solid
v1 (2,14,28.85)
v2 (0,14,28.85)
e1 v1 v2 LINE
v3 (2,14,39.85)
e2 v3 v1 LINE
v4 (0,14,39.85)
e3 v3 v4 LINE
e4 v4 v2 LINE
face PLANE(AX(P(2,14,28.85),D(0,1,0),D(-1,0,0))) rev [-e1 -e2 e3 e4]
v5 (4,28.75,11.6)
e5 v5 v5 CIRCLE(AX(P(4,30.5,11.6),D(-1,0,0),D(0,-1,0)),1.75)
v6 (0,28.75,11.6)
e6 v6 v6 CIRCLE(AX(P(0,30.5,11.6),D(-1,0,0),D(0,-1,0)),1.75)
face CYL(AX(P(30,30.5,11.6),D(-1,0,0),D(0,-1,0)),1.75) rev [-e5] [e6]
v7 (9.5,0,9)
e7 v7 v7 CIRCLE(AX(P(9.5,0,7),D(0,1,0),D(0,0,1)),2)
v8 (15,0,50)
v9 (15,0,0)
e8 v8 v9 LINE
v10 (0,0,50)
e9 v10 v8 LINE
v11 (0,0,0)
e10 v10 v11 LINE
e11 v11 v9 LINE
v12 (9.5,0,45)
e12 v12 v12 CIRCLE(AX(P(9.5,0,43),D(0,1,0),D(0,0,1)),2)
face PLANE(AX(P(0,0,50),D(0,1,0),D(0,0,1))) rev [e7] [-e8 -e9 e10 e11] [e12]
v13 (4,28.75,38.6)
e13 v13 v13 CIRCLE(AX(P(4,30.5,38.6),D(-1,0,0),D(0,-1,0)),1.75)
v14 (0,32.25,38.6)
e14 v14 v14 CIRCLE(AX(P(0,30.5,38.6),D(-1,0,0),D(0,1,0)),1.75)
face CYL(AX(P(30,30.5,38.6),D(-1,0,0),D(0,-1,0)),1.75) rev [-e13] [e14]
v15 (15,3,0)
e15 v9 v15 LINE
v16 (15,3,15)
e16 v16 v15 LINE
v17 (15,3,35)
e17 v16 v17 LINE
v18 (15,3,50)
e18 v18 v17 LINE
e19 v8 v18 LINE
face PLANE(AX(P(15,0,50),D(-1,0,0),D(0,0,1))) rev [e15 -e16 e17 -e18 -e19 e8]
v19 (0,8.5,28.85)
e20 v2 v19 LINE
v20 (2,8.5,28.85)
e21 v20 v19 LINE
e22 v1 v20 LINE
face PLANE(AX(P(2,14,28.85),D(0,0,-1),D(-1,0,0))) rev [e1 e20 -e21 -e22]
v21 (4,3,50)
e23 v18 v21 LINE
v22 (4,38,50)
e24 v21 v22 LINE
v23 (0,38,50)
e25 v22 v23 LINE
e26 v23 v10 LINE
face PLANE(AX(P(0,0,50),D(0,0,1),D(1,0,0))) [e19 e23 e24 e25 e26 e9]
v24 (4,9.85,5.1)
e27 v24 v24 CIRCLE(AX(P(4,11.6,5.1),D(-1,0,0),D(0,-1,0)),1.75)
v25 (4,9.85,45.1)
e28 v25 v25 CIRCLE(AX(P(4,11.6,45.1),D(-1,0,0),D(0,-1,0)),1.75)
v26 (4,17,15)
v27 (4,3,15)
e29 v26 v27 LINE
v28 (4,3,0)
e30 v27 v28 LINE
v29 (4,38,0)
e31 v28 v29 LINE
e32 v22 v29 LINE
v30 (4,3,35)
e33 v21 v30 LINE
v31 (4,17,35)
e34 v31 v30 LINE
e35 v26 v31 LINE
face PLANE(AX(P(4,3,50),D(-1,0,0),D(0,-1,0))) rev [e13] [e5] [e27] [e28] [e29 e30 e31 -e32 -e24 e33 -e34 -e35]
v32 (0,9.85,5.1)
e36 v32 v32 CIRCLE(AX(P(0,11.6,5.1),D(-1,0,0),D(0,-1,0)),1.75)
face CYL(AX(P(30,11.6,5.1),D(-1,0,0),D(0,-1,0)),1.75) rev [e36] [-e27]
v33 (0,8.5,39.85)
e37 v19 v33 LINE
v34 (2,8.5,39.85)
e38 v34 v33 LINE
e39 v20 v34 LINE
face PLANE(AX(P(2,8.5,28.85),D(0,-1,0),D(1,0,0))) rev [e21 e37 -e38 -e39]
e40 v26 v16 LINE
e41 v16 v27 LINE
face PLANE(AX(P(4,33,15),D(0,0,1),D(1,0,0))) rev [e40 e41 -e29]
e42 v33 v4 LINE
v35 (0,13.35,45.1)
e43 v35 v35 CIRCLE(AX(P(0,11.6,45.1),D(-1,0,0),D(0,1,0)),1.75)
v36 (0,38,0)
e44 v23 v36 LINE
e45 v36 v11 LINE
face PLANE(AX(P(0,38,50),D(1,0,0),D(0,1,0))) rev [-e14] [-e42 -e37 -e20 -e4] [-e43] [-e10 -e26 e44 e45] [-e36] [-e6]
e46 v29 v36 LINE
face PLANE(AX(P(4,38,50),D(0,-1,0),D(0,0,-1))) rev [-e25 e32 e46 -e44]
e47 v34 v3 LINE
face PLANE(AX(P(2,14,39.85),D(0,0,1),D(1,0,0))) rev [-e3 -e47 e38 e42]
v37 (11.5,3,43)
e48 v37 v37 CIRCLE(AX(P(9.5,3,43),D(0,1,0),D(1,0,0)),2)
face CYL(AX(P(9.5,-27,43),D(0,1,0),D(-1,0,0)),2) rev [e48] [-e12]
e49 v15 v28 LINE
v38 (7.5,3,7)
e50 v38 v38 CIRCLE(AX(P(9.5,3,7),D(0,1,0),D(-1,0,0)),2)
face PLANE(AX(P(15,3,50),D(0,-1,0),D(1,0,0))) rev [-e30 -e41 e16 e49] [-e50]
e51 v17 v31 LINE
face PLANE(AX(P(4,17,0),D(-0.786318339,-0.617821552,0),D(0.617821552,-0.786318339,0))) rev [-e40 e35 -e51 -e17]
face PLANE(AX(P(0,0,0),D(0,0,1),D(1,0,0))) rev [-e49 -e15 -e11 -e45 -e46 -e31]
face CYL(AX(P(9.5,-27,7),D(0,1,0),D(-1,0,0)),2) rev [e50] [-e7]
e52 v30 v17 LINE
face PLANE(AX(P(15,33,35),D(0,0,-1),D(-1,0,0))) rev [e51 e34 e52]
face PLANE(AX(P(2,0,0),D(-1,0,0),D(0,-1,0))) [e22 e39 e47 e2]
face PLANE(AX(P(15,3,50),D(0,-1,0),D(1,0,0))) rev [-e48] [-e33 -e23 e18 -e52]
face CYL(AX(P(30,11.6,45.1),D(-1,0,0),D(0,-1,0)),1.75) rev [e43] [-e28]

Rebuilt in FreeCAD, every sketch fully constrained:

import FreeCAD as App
import Part
import Sketcher
Q = App.Units.Quantity


def add_polygon(sketch, points):
    """Adds a closed chain of lines whose ends are joined by coincident constraints."""
    first, n = sketch.GeometryCount, len(points)
    for a, b in zip(points, points[1:] + points[:1]):
        sketch.addGeometry(Part.LineSegment(App.Vector(*a, 0), App.Vector(*b, 0)), False)
    for i in range(n):
        sketch.addConstraint(Sketcher.Constraint("Coincident", first + i, 2, first + (i + 1) % n, 1))

doc = App.newDocument("Part")
body = doc.addObject("PartDesign::Body", "Body")

sketch1 = body.newObject("Sketcher::SketchObject", "Sketch")
sketch1.AttachmentSupport = (doc.getObject("XY_Plane"), [""])
sketch1.MapMode = "FlatFace"
add_polygon(sketch1, [(0, 38), (0, 0), (15, 0), (15, 3), (4, 3), (4, 38)])
sketch1.addConstraint(Sketcher.Constraint("Vertical", 0))
sketch1.addConstraint(Sketcher.Constraint("Horizontal", 1))
sketch1.addConstraint(Sketcher.Constraint("Vertical", 2))
sketch1.addConstraint(Sketcher.Constraint("Horizontal", 3))
sketch1.addConstraint(Sketcher.Constraint("Vertical", 4))
sketch1.addConstraint(Sketcher.Constraint("Horizontal", 5))
sketch1.addConstraint(Sketcher.Constraint("Coincident", 0, 2, -1, 1))
sketch1.addConstraint(Sketcher.Constraint("DistanceX", 1, 1, 1, 2, Q("15 mm")))
sketch1.addConstraint(Sketcher.Constraint("DistanceX", 3, 2, 3, 1, Q("11 mm")))
sketch1.addConstraint(Sketcher.Constraint("DistanceY", 0, 2, 0, 1, Q("38 mm")))
sketch1.addConstraint(Sketcher.Constraint("DistanceY", 2, 1, 2, 2, Q("3 mm")))
pad1 = body.newObject("PartDesign::Pad", "Pad")
pad1.Profile = sketch1
pad1.Length = 50

sketch2 = body.newObject("Sketcher::SketchObject", "Sketch001")
sketch2.AttachmentSupport = (doc.getObject("XZ_Plane"), [""])
sketch2.MapMode = "FlatFace"
sketch2.AttachmentOffset = App.Placement(App.Vector(0, 0, -3), App.Rotation())
add_polygon(sketch2, [(4, 15), (4, 35), (15, 35), (15, 15)])
sketch2.addConstraint(Sketcher.Constraint("Vertical", 0))
sketch2.addConstraint(Sketcher.Constraint("Horizontal", 1))
sketch2.addConstraint(Sketcher.Constraint("Vertical", 2))
sketch2.addConstraint(Sketcher.Constraint("Horizontal", 3))
sketch2.addConstraint(Sketcher.Constraint("DistanceX", 1, 1, 1, 2, Q("11 mm")))
sketch2.addConstraint(Sketcher.Constraint("DistanceY", 0, 1, 0, 2, Q("20 mm")))
sketch2.addConstraint(Sketcher.Constraint("DistanceX", -1, 1, 0, 2, Q("4 mm")))
sketch2.addConstraint(Sketcher.Constraint("DistanceY", -1, 1, 0, 2, Q("35 mm")))
pad2 = body.newObject("PartDesign::Pad", "Pad001")
pad2.Profile = sketch2
pad2.Length = 30
pad2.Reversed = True

sketch3 = body.newObject("Sketcher::SketchObject", "Sketch002")
sketch3.AttachmentSupport = (doc.getObject("XY_Plane"), [""])
sketch3.MapMode = "FlatFace"
sketch3.AttachmentOffset = App.Placement(App.Vector(0, 0, 50), App.Rotation())
add_polygon(sketch3, [(4, 33), (4, 17), (15, 3), (15, 33)])
sketch3.addConstraint(Sketcher.Constraint("Vertical", 0))
sketch3.addConstraint(Sketcher.Constraint("Vertical", 2))
sketch3.addConstraint(Sketcher.Constraint("Horizontal", 3))
sketch3.addConstraint(Sketcher.Constraint("DistanceX", 3, 2, 3, 1, Q("11 mm")))
sketch3.addConstraint(Sketcher.Constraint("DistanceY", 0, 2, 0, 1, Q("16 mm")))
sketch3.addConstraint(Sketcher.Constraint("DistanceY", 2, 1, 2, 2, Q("30 mm")))
sketch3.addConstraint(Sketcher.Constraint("DistanceX", -1, 1, 0, 2, Q("4 mm")))
sketch3.addConstraint(Sketcher.Constraint("DistanceY", -1, 1, 0, 2, Q("17 mm")))
pocket1 = body.newObject("PartDesign::Pocket", "Pocket")
pocket1.Profile = sketch3
pocket1.Type = "ThroughAll"

sketch4 = body.newObject("Sketcher::SketchObject", "Sketch003")
sketch4.AttachmentSupport = (doc.getObject("YZ_Plane"), [""])
sketch4.MapMode = "FlatFace"
sketch4.addGeometry(Part.Circle(App.Vector(11.6, 5.1, 0), App.Vector(0, 0, 1), 1.75), False)
sketch4.addGeometry(Part.Circle(App.Vector(30.5, 11.6, 0), App.Vector(0, 0, 1), 1.75), False)
sketch4.addGeometry(Part.Circle(App.Vector(11.6, 45.1, 0), App.Vector(0, 0, 1), 1.75), False)
sketch4.addGeometry(Part.Circle(App.Vector(30.5, 38.6, 0), App.Vector(0, 0, 1), 1.75), False)
sketch4.addConstraint(Sketcher.Constraint("Equal", 0, 1))
sketch4.addConstraint(Sketcher.Constraint("Equal", 1, 2))
sketch4.addConstraint(Sketcher.Constraint("Equal", 2, 3))
sketch4.addConstraint(Sketcher.Constraint("Vertical", 0, 3, 2, 3))
sketch4.addConstraint(Sketcher.Constraint("Vertical", 1, 3, 3, 3))
sketch4.addConstraint(Sketcher.Constraint("Diameter", 0, Q("3.5 mm")))
sketch4.addConstraint(Sketcher.Constraint("DistanceY", 0, 3, 2, 3, Q("40 mm")))
sketch4.addConstraint(Sketcher.Constraint("DistanceY", 1, 3, 3, 3, Q("27 mm")))
sketch4.addConstraint(Sketcher.Constraint("DistanceX", -1, 1, 0, 3, Q("11.6 mm")))
sketch4.addConstraint(Sketcher.Constraint("DistanceY", -1, 1, 0, 3, Q("5.1 mm")))
sketch4.addConstraint(Sketcher.Constraint("DistanceX", -1, 1, 1, 3, Q("30.5 mm")))
sketch4.addConstraint(Sketcher.Constraint("DistanceY", -1, 1, 1, 3, Q("11.6 mm")))
pocket2 = body.newObject("PartDesign::Pocket", "Pocket001")
pocket2.Profile = sketch4
pocket2.Length = 30
pocket2.Reversed = True

sketch5 = body.newObject("Sketcher::SketchObject", "Sketch004")
sketch5.AttachmentSupport = (doc.getObject("XZ_Plane"), [""])
sketch5.MapMode = "FlatFace"
sketch5.AttachmentOffset = App.Placement(App.Vector(0, 0, -3), App.Rotation())
sketch5.addGeometry(Part.Circle(App.Vector(9.5, 43, 0), App.Vector(0, 0, 1), 2), False)
sketch5.addGeometry(Part.Circle(App.Vector(9.5, 7, 0), App.Vector(0, 0, 1), 2), False)
sketch5.addConstraint(Sketcher.Constraint("Equal", 0, 1))
sketch5.addConstraint(Sketcher.Constraint("Vertical", 0, 3, 1, 3))
sketch5.addConstraint(Sketcher.Constraint("Diameter", 0, Q("4 mm")))
sketch5.addConstraint(Sketcher.Constraint("DistanceY", -1, 1, 0, 3, Q("43 mm")))
sketch5.addConstraint(Sketcher.Constraint("DistanceY", -1, 1, 1, 3, Q("7 mm")))
sketch5.addConstraint(Sketcher.Constraint("DistanceX", -1, 1, 0, 3, Q("9.5 mm")))
pocket3 = body.newObject("PartDesign::Pocket", "Pocket002")
pocket3.Profile = sketch5
pocket3.Length = 30
pocket3.Reversed = True

sketch6 = body.newObject("Sketcher::SketchObject", "Sketch005")
sketch6.AttachmentSupport = (doc.getObject("YZ_Plane"), [""])
sketch6.MapMode = "FlatFace"
add_polygon(sketch6, [(14, 28.85), (8.5, 28.85), (8.5, 39.85), (14, 39.85)])
sketch6.addConstraint(Sketcher.Constraint("Horizontal", 0))
sketch6.addConstraint(Sketcher.Constraint("Vertical", 1))
sketch6.addConstraint(Sketcher.Constraint("Horizontal", 2))
sketch6.addConstraint(Sketcher.Constraint("Vertical", 3))
sketch6.addConstraint(Sketcher.Constraint("DistanceY", 1, 1, 1, 2, Q("11 mm")))
sketch6.addConstraint(Sketcher.Constraint("DistanceX", 0, 2, 0, 1, Q("5.5 mm")))
sketch6.addConstraint(Sketcher.Constraint("DistanceX", -1, 1, 2, 2, Q("14 mm")))
sketch6.addConstraint(Sketcher.Constraint("DistanceY", -1, 1, 0, 2, Q("28.85 mm")))
pocket4 = body.newObject("PartDesign::Pocket", "Pocket003")
pocket4.Profile = sketch6
pocket4.Length = 2
pocket4.Reversed = True

doc.recompute()
